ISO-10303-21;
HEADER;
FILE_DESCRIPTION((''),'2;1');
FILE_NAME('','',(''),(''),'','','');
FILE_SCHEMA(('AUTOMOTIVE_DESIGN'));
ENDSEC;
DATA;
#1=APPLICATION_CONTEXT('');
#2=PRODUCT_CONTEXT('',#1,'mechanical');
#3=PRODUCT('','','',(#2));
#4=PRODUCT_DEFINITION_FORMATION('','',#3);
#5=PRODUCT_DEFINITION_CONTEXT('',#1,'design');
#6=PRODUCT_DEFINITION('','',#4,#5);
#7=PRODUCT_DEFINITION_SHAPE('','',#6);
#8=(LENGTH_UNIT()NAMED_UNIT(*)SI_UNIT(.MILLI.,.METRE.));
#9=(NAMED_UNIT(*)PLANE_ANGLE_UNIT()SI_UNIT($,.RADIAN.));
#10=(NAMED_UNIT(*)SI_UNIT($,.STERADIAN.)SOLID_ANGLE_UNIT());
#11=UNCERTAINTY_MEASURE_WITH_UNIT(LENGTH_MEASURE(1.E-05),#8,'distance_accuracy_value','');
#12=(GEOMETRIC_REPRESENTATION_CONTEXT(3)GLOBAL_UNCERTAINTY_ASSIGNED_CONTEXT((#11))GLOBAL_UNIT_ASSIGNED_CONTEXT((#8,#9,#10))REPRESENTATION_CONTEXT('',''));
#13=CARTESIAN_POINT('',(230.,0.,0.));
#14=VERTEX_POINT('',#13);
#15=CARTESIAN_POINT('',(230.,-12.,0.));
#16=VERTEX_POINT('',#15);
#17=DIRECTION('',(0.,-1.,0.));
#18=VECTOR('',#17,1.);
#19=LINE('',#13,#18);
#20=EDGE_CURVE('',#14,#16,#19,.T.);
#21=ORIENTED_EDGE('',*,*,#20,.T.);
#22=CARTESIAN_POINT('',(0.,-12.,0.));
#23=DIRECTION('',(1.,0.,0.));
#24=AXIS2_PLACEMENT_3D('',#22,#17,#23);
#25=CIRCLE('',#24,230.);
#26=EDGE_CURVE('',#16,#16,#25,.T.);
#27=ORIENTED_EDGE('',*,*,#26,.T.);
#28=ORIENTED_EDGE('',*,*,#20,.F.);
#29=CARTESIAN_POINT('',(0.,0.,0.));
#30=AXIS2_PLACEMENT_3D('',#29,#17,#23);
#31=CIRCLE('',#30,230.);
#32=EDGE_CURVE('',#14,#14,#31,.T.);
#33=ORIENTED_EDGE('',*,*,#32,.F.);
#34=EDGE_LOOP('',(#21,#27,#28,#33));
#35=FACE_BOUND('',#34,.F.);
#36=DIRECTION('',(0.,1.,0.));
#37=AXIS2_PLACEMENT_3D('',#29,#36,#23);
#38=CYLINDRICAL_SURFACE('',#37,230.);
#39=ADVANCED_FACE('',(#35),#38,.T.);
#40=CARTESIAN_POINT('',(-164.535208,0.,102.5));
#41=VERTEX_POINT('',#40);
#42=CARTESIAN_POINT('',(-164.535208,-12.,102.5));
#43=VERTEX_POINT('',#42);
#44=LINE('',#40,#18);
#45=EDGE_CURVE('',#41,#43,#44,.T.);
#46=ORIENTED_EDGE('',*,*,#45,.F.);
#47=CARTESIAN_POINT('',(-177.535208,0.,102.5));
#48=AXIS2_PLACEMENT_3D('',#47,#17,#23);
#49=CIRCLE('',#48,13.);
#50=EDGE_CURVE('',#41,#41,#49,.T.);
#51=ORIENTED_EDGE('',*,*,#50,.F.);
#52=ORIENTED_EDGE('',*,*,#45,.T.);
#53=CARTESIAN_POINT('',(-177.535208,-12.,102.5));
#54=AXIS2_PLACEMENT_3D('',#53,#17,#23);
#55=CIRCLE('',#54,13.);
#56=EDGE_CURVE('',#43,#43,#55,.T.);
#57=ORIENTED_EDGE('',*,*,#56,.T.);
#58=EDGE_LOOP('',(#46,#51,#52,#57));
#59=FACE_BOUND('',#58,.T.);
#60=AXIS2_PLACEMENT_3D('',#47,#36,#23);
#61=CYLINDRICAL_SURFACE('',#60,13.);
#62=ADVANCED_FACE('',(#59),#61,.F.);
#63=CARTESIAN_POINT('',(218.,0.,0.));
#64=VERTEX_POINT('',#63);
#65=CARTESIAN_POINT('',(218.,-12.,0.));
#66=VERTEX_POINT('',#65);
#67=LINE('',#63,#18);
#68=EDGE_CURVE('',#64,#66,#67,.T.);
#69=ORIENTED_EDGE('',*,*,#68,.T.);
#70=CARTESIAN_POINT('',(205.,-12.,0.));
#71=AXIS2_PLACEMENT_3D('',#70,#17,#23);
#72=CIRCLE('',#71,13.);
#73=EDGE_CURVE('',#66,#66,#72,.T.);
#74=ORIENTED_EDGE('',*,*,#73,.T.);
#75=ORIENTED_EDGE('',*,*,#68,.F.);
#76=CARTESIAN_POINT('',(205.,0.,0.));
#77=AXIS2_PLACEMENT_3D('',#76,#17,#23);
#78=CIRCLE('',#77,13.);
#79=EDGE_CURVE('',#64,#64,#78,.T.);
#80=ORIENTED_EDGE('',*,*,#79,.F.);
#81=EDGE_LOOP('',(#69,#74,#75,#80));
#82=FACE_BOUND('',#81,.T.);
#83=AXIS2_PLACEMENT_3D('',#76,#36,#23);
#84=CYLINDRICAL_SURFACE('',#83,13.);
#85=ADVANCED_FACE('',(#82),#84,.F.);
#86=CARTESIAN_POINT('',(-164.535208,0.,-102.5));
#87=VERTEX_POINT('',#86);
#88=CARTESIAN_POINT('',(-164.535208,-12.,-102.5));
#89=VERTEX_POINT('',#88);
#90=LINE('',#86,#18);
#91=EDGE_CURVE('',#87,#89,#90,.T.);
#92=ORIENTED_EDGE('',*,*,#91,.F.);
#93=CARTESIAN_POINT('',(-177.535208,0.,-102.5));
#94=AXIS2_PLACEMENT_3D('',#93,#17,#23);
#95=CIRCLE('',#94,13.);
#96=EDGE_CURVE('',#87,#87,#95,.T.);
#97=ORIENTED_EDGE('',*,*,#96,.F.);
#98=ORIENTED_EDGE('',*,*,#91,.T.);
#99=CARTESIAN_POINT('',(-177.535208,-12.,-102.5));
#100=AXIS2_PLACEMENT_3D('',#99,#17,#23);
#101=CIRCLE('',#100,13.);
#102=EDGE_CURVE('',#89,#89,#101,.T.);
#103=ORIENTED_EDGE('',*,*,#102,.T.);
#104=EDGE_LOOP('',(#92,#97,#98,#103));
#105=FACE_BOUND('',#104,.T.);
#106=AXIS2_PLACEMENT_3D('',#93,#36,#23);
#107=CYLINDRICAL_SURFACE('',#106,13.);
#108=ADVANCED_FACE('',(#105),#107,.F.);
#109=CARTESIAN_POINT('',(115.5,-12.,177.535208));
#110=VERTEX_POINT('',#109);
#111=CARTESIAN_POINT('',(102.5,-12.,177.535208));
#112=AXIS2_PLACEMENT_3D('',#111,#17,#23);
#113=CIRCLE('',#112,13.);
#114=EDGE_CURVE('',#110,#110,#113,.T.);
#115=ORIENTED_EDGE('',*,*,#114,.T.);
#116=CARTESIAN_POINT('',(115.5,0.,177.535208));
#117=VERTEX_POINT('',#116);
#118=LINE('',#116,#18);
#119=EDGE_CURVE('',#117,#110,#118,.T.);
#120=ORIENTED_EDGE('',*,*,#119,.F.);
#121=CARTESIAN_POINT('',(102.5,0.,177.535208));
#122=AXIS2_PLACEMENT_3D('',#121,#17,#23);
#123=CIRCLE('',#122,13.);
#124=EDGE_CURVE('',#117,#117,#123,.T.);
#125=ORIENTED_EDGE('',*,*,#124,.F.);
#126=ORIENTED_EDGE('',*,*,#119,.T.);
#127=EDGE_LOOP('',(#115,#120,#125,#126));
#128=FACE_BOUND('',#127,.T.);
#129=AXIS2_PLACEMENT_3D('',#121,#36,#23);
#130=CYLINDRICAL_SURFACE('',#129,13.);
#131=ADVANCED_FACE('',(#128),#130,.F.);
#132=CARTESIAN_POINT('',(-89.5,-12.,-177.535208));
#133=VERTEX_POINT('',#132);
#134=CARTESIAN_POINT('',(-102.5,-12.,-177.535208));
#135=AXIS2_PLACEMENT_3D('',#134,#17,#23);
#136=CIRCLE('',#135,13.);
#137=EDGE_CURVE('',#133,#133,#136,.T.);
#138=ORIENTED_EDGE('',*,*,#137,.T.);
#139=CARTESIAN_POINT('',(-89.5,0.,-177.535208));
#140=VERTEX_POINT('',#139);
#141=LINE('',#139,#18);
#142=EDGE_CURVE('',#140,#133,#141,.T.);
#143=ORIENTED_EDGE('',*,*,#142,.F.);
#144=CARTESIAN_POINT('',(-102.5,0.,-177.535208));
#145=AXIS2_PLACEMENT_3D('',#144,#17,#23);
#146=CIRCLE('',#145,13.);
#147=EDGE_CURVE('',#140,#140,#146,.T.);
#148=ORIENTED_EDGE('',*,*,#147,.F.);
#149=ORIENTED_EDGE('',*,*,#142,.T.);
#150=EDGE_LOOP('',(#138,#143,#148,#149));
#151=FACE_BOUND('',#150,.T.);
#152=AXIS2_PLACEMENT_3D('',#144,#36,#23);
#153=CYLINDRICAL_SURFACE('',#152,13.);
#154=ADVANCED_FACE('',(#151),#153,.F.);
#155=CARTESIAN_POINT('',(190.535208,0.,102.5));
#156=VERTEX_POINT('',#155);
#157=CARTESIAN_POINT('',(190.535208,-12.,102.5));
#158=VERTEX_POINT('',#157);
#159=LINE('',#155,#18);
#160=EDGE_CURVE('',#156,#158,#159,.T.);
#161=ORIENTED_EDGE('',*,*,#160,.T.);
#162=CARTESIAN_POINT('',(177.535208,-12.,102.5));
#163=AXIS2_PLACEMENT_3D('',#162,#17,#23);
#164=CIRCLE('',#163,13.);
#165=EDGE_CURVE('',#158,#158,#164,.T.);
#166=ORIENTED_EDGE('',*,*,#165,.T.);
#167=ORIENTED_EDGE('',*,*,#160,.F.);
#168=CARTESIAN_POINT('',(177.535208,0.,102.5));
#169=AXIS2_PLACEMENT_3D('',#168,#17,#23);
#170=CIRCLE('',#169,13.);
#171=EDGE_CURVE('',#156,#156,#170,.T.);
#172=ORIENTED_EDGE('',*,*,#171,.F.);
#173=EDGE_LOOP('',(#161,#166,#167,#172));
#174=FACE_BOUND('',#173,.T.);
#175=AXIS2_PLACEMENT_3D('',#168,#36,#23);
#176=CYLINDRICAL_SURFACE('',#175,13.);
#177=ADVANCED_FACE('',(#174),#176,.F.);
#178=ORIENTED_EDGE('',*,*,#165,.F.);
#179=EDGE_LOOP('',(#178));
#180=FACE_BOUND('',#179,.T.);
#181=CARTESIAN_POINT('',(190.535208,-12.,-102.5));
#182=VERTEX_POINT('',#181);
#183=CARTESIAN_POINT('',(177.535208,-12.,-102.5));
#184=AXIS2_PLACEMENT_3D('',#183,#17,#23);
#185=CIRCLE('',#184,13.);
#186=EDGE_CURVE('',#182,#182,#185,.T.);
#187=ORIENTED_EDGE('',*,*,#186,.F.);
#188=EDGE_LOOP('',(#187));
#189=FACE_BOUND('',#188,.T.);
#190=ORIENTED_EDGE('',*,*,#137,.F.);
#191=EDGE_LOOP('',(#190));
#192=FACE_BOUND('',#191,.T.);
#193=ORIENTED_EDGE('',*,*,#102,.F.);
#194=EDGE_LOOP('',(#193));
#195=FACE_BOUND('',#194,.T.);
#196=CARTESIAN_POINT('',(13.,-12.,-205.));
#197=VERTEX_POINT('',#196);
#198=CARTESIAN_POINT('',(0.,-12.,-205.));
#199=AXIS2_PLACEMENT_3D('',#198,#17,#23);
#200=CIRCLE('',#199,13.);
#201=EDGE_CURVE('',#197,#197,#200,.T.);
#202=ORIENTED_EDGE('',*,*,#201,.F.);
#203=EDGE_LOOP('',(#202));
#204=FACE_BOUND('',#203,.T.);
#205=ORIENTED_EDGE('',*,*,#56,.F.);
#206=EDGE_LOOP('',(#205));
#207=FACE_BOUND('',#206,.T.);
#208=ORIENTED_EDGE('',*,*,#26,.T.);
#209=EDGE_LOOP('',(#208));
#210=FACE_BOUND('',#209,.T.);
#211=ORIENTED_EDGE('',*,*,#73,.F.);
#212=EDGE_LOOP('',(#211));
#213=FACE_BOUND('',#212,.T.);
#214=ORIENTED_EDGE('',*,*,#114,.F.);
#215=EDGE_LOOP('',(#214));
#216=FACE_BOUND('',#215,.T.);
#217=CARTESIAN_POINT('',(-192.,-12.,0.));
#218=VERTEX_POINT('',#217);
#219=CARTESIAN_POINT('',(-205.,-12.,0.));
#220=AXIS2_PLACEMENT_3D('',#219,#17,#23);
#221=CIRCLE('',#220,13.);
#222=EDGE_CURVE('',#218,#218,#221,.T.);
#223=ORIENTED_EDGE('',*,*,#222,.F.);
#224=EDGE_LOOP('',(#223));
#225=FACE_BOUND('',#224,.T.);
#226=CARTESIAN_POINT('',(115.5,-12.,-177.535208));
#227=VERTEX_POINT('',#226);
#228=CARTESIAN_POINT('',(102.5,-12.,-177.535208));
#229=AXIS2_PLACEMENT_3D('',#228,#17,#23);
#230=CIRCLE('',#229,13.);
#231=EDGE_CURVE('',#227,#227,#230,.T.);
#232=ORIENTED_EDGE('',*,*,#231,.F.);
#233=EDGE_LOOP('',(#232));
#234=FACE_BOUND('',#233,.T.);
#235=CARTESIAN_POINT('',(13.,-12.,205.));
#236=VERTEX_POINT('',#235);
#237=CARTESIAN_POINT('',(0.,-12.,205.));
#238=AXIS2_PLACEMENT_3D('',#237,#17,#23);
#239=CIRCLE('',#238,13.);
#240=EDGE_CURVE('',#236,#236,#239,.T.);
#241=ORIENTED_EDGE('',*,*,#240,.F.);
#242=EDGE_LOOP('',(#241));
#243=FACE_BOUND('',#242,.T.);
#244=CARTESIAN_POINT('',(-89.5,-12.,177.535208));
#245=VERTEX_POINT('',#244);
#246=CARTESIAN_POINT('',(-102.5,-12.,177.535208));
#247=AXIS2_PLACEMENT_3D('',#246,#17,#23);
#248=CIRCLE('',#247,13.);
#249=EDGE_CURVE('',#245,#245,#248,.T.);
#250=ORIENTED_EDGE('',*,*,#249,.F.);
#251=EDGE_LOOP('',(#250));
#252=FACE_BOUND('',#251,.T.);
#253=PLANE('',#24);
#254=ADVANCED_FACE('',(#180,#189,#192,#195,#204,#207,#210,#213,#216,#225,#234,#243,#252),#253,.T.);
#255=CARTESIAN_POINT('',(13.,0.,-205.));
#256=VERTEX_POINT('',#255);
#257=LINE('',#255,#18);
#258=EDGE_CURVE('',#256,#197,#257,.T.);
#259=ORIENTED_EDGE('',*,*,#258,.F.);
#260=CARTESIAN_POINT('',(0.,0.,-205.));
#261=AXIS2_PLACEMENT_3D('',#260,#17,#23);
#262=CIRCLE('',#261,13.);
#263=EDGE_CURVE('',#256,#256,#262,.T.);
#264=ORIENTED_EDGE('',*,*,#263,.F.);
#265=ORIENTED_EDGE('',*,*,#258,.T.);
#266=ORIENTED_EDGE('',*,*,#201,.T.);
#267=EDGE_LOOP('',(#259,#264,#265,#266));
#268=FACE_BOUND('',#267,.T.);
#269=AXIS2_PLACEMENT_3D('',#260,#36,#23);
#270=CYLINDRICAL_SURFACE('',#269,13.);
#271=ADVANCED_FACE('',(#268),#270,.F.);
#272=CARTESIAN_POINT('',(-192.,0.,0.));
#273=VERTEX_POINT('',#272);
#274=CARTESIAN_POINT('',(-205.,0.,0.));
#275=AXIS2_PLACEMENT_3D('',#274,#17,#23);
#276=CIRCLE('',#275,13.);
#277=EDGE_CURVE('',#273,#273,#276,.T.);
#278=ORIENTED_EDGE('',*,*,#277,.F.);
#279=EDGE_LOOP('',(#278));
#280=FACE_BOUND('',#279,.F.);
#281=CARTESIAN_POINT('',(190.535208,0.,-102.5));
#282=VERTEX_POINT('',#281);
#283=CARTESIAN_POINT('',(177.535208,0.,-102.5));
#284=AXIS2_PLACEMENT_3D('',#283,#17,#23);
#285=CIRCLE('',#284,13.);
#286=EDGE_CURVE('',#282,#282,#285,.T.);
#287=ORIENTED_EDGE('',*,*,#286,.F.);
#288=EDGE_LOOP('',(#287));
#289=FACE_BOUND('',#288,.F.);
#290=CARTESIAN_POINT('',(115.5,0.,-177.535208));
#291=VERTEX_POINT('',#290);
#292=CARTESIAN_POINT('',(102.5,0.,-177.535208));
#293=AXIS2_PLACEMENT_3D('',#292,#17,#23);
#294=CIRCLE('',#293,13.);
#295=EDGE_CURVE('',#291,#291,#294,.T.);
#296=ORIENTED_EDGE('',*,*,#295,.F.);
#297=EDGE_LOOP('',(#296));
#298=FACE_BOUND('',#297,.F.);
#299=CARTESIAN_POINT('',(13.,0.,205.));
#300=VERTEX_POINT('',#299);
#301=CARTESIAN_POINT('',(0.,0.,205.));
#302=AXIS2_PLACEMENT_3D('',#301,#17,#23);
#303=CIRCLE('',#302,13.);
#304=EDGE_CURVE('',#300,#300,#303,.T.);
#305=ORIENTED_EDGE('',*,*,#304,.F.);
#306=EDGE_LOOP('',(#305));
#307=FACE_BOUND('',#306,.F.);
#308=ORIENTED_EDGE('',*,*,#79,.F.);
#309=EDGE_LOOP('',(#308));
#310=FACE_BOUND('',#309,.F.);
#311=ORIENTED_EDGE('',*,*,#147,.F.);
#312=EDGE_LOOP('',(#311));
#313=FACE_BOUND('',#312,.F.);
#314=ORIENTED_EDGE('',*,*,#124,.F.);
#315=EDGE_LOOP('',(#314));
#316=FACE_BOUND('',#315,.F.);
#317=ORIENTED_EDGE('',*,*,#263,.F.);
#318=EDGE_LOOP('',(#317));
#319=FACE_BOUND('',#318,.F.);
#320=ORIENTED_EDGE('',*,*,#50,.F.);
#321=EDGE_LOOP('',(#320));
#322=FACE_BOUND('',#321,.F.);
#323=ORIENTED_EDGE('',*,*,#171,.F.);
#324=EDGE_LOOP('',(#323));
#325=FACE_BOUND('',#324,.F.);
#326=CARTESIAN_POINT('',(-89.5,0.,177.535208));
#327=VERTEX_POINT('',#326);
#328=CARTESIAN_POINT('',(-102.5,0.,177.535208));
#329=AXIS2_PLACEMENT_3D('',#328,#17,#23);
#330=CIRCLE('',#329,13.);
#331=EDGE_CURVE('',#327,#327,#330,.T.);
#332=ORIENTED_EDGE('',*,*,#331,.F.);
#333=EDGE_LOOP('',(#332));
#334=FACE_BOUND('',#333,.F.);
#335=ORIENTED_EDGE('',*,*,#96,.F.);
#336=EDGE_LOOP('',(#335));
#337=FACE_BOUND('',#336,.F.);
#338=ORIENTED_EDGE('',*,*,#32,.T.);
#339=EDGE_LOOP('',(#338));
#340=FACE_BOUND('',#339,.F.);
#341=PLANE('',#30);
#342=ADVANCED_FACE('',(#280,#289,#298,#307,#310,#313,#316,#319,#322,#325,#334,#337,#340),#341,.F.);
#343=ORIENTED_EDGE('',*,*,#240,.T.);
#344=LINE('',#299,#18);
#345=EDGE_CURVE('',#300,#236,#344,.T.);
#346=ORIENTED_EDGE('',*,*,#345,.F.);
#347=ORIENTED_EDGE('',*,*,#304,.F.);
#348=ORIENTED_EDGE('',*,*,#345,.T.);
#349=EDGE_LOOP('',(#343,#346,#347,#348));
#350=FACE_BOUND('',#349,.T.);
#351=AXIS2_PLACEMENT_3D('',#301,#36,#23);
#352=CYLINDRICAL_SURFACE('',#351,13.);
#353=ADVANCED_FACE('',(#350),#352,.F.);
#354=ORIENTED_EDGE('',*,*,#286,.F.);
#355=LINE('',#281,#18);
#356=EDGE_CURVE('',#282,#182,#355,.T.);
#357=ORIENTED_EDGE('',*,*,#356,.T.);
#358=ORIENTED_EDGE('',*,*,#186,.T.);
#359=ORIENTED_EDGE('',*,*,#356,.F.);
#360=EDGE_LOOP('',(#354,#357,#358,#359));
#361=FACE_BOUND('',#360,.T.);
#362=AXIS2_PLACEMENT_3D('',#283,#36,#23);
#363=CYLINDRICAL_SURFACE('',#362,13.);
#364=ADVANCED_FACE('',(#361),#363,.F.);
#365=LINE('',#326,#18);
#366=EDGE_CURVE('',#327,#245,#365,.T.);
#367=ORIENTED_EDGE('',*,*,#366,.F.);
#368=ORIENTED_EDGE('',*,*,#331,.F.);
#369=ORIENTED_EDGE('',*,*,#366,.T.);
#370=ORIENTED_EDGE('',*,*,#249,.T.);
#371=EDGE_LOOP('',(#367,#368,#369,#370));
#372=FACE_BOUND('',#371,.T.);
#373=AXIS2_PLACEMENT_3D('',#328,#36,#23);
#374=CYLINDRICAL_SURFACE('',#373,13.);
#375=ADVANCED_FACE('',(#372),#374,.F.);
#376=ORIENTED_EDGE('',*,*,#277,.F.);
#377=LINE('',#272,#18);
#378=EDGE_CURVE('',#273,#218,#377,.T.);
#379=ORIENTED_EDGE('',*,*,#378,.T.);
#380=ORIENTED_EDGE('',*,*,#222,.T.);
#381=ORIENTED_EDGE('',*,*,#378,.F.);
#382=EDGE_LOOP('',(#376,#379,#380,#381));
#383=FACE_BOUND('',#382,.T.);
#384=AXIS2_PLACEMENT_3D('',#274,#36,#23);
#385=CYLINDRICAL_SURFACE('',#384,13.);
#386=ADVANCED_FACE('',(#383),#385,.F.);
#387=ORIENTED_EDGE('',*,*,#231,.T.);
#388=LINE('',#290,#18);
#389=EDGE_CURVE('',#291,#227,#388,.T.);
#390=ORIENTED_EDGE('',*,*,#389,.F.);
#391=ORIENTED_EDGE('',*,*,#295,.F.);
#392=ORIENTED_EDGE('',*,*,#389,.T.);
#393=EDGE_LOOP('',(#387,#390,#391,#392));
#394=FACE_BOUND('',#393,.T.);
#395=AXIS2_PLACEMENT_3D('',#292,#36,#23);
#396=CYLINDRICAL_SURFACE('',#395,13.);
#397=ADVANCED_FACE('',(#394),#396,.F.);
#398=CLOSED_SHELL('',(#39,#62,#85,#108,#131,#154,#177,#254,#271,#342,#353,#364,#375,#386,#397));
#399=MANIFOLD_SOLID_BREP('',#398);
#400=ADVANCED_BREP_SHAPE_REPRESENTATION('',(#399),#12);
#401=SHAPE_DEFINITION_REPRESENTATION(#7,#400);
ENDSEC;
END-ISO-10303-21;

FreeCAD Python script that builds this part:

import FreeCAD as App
import Part
import Sketcher
from FreeCAD import Vector

doc = App.newDocument("Part")
body = doc.addObject("PartDesign::Body", "Body")

# Sketch on XZ plane
sketch1 = body.newObject("Sketcher::SketchObject", "Sketch")
sketch1.AttachmentSupport = (doc.getObject("XZ_Plane"), [""])
sketch1.MapMode = "FlatFace"
sketch1.addGeometry(Part.Circle(Vector(0, 0, 0), Vector(0, 0, 1), 230), False)
sketch1.addGeometry(Part.Circle(Vector(-102.5, -177.535208, 0), Vector(0, 0, 1), 13), False)
sketch1.addGeometry(Part.Circle(Vector(-177.535208, -102.5, 0), Vector(0, 0, 1), 13), False)
sketch1.addGeometry(Part.Circle(Vector(0, -205, 0), Vector(0, 0, 1), 13), False)
sketch1.addGeometry(Part.Circle(Vector(102.5, -177.535208, 0), Vector(0, 0, 1), 13), False)
sketch1.addGeometry(Part.Circle(Vector(177.535208, -102.5, 0), Vector(0, 0, 1), 13), False)
sketch1.addGeometry(Part.Circle(Vector(-205, 0, 0), Vector(0, 0, 1), 13), False)
sketch1.addGeometry(Part.Circle(Vector(-177.535208, 102.5, 0), Vector(0, 0, 1), 13), False)
sketch1.addGeometry(Part.Circle(Vector(-102.5, 177.535208, 0), Vector(0, 0, 1), 13), False)
sketch1.addGeometry(Part.Circle(Vector(205, 0, 0), Vector(0, 0, 1), 13), False)
sketch1.addGeometry(Part.Circle(Vector(177.535208, 102.5, 0), Vector(0, 0, 1), 13), False)
sketch1.addGeometry(Part.Circle(Vector(0, 205, 0), Vector(0, 0, 1), 13), False)
sketch1.addGeometry(Part.Circle(Vector(102.5, 177.535208, 0), Vector(0, 0, 1), 13), False)
sketch1.addConstraint(Sketcher.Constraint("Coincident", 0, 3, -1, 1))
sketch1.addConstraint(Sketcher.Constraint("Equal", 1, 2))
sketch1.addConstraint(Sketcher.Constraint("Equal", 2, 3))
sketch1.addConstraint(Sketcher.Constraint("Equal", 3, 4))
sketch1.addConstraint(Sketcher.Constraint("Equal", 4, 5))
sketch1.addConstraint(Sketcher.Constraint("Equal", 5, 6))
sketch1.addConstraint(Sketcher.Constraint("Equal", 6, 7))
sketch1.addConstraint(Sketcher.Constraint("Equal", 7, 8))
sketch1.addConstraint(Sketcher.Constraint("Equal", 8, 9))
sketch1.addConstraint(Sketcher.Constraint("Equal", 9, 10))
sketch1.addConstraint(Sketcher.Constraint("Equal", 10, 11))
sketch1.addConstraint(Sketcher.Constraint("Equal", 11, 12))
sketch1.addConstraint(Sketcher.Constraint("Symmetric", 5, 3, 7, 3, -1, 1))
sketch1.addConstraint(Sketcher.Constraint("Symmetric", 4, 3, 8, 3, -1, 1))
sketch1.addConstraint(Sketcher.Constraint("Symmetric", 6, 3, 9, 3, -1, 1))
sketch1.addConstraint(Sketcher.Constraint("Symmetric", 2, 3, 10, 3, -1, 1))
sketch1.addConstraint(Sketcher.Constraint("Symmetric", 3, 3, 11, 3, -1, 1))
sketch1.addConstraint(Sketcher.Constraint("Symmetric", 1, 3, 12, 3, -1, 1))
sketch1.addConstraint(Sketcher.Constraint("Symmetric", 1, 3, 4, 3, -2))
sketch1.addConstraint(Sketcher.Constraint("Symmetric", 2, 3, 5, 3, -2))
sketch1.addConstraint(Sketcher.Constraint("PointOnObject", 3, 3, -2))
sketch1.addConstraint(Sketcher.Constraint("PointOnObject", 6, 3, -1))
sketch1.addConstraint(Sketcher.Constraint("Diameter", 0, 460.0))
sketch1.addConstraint(Sketcher.Constraint("Diameter", 1, 26.0))
sketch1.addConstraint(Sketcher.Constraint("DistanceY", 3, 3, -1, 1, 205.0))
sketch1.addConstraint(Sketcher.Constraint("DistanceX", 6, 3, -1, 1, 205.0))
sketch1.addConstraint(Sketcher.Constraint("DistanceX", 1, 3, 4, 3, 205.0))
sketch1.addConstraint(Sketcher.Constraint("DistanceY", 2, 3, 7, 3, 205.0))
sketch1.addConstraint(Sketcher.Constraint("DistanceY", 1, 3, -1, 1, 177.535208))
sketch1.addConstraint(Sketcher.Constraint("DistanceX", 2, 3, -1, 1, 177.535208))
pad1 = body.newObject("PartDesign::Pad", "Pad")
pad1.Profile = sketch1
pad1.Length = 12

doc.recompute()
